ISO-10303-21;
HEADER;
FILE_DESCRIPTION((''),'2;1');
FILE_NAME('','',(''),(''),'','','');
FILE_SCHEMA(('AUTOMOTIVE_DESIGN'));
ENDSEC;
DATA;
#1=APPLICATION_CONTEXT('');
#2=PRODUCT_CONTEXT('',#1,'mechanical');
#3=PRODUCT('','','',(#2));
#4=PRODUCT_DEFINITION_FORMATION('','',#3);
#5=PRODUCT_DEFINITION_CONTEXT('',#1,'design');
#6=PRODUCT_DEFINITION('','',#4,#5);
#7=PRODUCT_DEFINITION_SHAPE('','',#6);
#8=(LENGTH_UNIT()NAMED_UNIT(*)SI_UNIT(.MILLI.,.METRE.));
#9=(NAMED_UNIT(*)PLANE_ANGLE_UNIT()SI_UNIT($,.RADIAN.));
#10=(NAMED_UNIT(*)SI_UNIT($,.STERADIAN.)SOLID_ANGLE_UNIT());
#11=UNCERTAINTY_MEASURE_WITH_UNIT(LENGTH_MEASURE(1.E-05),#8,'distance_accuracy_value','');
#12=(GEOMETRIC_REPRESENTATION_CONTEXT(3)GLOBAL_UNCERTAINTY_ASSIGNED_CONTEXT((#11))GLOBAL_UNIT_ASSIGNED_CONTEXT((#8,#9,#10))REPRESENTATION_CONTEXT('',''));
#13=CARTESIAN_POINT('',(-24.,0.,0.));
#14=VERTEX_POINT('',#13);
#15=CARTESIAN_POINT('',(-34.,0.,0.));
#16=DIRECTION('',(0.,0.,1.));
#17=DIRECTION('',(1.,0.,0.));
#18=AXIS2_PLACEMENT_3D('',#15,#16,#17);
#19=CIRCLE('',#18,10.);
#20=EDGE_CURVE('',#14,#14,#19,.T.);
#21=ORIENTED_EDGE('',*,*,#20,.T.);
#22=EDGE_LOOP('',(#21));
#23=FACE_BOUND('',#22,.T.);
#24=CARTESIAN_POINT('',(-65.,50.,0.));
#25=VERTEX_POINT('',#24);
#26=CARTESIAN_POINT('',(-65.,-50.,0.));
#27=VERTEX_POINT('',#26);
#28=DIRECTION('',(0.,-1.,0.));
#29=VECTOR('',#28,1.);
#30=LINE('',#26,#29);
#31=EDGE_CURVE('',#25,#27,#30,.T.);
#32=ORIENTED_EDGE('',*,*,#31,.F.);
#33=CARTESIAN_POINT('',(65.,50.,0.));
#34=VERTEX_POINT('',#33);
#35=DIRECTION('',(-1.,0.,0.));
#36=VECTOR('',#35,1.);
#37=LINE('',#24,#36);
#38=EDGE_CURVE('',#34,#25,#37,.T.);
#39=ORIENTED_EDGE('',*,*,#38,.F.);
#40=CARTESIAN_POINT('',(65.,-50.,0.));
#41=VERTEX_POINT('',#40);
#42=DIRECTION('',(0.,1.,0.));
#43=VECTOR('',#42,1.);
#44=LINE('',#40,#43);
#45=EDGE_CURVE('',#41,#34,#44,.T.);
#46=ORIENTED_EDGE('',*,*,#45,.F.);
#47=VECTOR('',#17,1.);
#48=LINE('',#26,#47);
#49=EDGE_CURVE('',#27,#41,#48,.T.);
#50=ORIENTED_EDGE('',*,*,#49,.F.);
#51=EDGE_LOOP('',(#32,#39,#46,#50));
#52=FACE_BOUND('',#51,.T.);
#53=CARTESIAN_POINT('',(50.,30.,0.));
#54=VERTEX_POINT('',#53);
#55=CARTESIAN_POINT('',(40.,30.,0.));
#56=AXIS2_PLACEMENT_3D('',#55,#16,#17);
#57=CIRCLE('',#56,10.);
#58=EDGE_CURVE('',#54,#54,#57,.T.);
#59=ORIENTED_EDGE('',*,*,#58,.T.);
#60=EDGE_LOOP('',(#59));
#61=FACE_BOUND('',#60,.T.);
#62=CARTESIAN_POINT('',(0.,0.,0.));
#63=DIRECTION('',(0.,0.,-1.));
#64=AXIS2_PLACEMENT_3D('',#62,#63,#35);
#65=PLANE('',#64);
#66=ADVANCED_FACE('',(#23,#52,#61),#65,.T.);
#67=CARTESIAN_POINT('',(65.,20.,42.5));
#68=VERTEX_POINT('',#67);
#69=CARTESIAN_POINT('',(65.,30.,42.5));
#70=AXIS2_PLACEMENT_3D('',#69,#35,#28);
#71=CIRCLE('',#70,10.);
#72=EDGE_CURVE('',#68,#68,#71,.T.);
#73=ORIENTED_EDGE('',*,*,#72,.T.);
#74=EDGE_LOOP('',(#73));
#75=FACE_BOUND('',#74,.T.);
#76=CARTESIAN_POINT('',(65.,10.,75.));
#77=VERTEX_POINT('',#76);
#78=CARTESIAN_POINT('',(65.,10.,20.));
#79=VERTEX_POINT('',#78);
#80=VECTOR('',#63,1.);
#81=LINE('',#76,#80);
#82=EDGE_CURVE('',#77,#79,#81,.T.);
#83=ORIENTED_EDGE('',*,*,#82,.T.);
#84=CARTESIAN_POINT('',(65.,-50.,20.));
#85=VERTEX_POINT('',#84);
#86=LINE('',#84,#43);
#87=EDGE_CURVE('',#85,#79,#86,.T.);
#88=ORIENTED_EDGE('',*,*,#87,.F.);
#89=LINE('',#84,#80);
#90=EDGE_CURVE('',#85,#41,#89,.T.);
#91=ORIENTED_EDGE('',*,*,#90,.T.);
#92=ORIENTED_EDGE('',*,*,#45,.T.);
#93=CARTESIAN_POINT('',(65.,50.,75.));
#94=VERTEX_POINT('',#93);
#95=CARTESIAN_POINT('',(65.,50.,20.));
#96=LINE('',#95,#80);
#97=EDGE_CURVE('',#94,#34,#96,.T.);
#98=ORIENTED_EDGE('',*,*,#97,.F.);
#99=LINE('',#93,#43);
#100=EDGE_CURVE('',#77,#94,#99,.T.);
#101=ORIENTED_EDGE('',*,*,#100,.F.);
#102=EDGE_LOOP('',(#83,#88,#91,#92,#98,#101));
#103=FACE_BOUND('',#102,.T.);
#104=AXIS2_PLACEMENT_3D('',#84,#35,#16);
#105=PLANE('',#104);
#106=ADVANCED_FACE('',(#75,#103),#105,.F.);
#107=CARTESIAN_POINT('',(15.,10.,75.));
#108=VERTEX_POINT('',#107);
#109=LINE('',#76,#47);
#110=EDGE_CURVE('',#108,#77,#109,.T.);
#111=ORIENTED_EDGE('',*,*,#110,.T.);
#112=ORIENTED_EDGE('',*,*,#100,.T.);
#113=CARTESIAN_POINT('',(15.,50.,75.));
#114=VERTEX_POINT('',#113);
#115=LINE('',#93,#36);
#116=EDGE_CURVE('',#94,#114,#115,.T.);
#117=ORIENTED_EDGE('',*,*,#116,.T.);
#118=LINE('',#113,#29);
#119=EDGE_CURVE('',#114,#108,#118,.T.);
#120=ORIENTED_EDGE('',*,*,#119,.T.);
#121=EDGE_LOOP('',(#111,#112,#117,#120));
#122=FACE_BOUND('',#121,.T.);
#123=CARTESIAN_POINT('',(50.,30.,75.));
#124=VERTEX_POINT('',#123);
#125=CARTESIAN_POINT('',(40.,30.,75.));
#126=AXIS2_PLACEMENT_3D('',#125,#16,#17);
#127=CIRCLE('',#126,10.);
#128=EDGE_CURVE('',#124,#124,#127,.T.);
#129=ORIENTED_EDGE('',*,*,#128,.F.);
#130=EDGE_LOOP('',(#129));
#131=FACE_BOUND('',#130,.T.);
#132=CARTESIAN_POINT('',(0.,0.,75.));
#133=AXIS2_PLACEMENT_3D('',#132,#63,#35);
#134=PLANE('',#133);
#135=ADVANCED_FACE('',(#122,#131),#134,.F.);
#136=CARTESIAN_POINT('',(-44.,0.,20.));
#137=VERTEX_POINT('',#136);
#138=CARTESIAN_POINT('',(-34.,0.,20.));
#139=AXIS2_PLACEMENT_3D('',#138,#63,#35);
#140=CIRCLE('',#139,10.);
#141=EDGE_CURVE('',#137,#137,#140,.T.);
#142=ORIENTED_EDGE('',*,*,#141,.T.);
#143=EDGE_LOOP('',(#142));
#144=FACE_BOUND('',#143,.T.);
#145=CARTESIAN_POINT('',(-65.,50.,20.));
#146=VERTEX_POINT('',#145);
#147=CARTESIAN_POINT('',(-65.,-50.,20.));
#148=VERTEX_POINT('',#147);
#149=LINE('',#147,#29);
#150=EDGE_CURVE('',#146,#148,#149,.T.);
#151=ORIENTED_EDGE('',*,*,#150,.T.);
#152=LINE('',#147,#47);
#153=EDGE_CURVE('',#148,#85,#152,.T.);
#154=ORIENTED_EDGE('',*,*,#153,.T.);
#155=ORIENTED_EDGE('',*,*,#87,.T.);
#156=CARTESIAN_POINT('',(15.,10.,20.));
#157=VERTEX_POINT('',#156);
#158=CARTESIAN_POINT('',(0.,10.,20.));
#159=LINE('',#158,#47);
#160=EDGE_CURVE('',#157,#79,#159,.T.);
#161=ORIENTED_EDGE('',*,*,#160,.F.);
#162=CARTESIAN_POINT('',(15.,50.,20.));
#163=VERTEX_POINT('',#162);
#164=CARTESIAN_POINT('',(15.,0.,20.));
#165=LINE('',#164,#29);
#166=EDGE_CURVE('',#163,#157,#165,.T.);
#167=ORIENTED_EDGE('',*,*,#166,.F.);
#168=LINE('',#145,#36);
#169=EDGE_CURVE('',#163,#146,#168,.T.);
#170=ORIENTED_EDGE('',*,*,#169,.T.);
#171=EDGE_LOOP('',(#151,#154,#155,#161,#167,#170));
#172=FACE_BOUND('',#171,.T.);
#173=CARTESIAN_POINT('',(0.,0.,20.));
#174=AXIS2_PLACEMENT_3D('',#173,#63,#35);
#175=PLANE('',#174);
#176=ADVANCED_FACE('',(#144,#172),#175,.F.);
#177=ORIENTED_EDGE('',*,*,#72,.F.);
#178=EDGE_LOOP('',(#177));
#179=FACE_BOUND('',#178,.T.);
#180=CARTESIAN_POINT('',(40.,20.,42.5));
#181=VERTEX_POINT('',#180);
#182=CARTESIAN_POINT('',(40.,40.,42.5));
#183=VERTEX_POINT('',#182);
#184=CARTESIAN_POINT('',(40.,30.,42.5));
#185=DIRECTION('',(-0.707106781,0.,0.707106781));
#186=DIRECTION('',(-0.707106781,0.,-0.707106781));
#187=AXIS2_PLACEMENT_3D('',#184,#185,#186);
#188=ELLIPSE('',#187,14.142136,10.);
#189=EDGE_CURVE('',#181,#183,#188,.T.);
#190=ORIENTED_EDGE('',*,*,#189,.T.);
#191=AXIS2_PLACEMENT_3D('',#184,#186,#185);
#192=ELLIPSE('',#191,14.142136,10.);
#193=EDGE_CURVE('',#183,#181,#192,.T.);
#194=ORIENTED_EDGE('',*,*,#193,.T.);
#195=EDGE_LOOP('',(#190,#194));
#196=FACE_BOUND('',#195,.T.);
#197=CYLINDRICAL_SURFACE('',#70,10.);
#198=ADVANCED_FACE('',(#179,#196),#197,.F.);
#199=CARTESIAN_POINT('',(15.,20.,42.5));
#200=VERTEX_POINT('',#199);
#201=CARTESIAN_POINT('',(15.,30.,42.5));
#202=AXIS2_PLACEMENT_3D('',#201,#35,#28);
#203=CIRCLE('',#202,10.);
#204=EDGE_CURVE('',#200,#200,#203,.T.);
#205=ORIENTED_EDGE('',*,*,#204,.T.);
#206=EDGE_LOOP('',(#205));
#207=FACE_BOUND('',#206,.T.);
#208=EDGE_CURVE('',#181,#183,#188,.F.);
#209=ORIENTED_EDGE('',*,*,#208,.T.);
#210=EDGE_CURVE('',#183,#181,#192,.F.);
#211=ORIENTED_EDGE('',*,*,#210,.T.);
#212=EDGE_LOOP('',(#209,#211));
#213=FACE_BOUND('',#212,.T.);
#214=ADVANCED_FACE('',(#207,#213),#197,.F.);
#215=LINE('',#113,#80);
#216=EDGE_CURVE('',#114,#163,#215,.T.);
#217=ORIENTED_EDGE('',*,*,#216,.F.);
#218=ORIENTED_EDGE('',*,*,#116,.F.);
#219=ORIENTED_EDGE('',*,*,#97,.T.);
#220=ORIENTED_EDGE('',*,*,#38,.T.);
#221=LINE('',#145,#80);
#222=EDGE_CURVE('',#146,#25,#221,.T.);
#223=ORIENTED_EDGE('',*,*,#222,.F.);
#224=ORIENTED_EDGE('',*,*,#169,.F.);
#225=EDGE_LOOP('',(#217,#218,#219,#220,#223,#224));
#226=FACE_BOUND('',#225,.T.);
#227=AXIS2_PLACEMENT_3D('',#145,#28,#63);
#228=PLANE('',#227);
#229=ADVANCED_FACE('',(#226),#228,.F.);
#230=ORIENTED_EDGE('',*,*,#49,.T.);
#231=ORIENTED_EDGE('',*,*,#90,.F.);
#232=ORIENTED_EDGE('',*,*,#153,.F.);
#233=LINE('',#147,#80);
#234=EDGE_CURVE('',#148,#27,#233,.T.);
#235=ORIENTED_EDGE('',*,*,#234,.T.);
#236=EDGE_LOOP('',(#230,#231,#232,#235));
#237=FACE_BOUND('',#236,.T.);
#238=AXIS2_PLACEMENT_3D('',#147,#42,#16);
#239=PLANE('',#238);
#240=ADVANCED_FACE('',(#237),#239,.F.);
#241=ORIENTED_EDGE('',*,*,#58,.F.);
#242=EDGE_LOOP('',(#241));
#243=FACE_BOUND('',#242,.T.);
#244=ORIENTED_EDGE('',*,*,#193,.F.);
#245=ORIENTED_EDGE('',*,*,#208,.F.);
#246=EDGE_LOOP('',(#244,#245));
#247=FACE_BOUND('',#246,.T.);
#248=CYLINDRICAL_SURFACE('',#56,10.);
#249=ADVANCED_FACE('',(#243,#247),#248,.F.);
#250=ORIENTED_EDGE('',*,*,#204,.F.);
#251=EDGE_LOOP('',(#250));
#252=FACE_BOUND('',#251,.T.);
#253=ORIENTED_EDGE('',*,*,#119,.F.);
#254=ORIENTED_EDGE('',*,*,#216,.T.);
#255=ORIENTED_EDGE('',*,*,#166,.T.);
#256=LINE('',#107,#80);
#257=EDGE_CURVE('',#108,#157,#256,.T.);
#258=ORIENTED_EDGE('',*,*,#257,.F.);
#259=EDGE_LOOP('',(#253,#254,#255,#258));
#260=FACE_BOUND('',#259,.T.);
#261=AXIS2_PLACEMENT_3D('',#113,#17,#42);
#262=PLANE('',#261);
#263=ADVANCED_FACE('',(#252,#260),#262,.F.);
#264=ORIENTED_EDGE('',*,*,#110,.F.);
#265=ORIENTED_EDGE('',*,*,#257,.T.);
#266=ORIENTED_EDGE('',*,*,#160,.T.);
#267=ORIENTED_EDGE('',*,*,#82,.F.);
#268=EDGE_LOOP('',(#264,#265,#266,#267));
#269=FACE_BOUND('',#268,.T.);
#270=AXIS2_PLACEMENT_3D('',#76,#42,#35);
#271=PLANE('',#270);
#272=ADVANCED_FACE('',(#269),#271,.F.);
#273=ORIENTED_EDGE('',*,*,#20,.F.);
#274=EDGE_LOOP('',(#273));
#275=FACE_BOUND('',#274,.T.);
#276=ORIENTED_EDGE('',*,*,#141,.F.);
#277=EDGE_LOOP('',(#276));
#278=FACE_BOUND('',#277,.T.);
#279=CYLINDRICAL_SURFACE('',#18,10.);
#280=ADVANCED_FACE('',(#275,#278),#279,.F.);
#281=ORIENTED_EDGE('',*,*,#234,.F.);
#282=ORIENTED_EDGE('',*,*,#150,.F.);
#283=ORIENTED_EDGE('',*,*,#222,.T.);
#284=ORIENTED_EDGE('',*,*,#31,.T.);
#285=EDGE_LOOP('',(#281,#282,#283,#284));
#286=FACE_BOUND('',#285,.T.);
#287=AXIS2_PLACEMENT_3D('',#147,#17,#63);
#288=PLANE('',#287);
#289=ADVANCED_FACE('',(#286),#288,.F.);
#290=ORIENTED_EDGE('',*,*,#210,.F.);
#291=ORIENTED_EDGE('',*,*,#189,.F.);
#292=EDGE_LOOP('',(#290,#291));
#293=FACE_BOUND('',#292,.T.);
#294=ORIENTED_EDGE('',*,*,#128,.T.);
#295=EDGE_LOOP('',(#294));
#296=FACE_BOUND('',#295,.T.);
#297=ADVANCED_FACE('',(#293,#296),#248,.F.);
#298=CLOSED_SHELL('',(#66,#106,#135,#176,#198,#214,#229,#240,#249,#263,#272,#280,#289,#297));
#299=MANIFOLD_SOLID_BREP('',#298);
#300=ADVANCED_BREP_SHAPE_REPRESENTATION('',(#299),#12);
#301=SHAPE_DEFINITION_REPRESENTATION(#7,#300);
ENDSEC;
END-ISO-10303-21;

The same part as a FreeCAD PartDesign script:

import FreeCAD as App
import Part
import Sketcher
Q = App.Units.Quantity


def add_polygon(sketch, points):
    """Adds a closed chain of lines whose ends are joined by coincident constraints."""
    first, n = sketch.GeometryCount, len(points)
    for a, b in zip(points, points[1:] + points[:1]):
        sketch.addGeometry(Part.LineSegment(App.Vector(*a, 0), App.Vector(*b, 0)), False)
    for i in range(n):
        sketch.addConstraint(Sketcher.Constraint("Coincident", first + i, 2, first + (i + 1) % n, 1))

doc = App.newDocument("Part")
body = doc.addObject("PartDesign::Body", "Body")

# Sketch on XY plane
sketch1 = body.newObject("Sketcher::SketchObject", "Sketch")
sketch1.AttachmentSupport = (doc.getObject("XY_Plane"), [""])
sketch1.MapMode = "FlatFace"
add_polygon(sketch1, [(-65, 50), (-65, -50), (65, -50), (65, 50)])  # lines 0-3
sketch1.addConstraint(Sketcher.Constraint("Vertical", 0))
sketch1.addConstraint(Sketcher.Constraint("Horizontal", 1))
sketch1.addConstraint(Sketcher.Constraint("Vertical", 2))
sketch1.addConstraint(Sketcher.Constraint("Horizontal", 3))
sketch1.addConstraint(Sketcher.Constraint("Symmetric", 0, 2, 2, 2, -1, 1))
sketch1.addConstraint(Sketcher.Constraint("DistanceX", 1, 1, 1, 2, Q("130 mm")))
sketch1.addConstraint(Sketcher.Constraint("DistanceY", 0, 2, 0, 1, Q("100 mm")))
pad1 = body.newObject("PartDesign::Pad", "Pad")
pad1.Profile = sketch1
pad1.Length = 20

# Sketch on XY plane
sketch2 = body.newObject("Sketcher::SketchObject", "Sketch001")
sketch2.AttachmentSupport = (doc.getObject("XY_Plane"), [""])
sketch2.MapMode = "FlatFace"
sketch2.AttachmentOffset = App.Placement(App.Vector(0, 0, 20), App.Rotation())
add_polygon(sketch2, [(-7, 38), (-7, -38), (53, -38), (53, 38)])  # lines 0-3
add_polygon(sketch2, [(-53, 38), (-53, -38), (-15, -38), (-15, 38)])  # lines 4-7
sketch2.addConstraint(Sketcher.Constraint("Vertical", 0))
sketch2.addConstraint(Sketcher.Constraint("Horizontal", 1))
sketch2.addConstraint(Sketcher.Constraint("Vertical", 2))
sketch2.addConstraint(Sketcher.Constraint("Horizontal", 3))
sketch2.addConstraint(Sketcher.Constraint("Vertical", 4))
sketch2.addConstraint(Sketcher.Constraint("Horizontal", 5))
sketch2.addConstraint(Sketcher.Constraint("Vertical", 6))
sketch2.addConstraint(Sketcher.Constraint("Horizontal", 7))
sketch2.addConstraint(Sketcher.Constraint("Symmetric", 2, 2, 4, 2, -1, 1))
sketch2.addConstraint(Sketcher.Constraint("Horizontal", 1, 2, 4, 2))
sketch2.addConstraint(Sketcher.Constraint("Horizontal", 3, 2, 6, 2))
sketch2.addConstraint(Sketcher.Constraint("DistanceX", 1, 1, 1, 2, Q("60 mm")))
sketch2.addConstraint(Sketcher.Constraint("DistanceX", 5, 1, 5, 2, Q("38 mm")))
sketch2.addConstraint(Sketcher.Constraint("DistanceY", 0, 2, 0, 1, Q("76 mm")))
sketch2.addConstraint(Sketcher.Constraint("DistanceX", 0, 2, -1, 1, Q("7 mm")))
pocket1 = body.newObject("PartDesign::Pocket", "Pocket")
pocket1.Profile = sketch2
pocket1.Length = 10

# Sketch on XY plane
sketch3 = body.newObject("Sketcher::SketchObject", "Sketch002")
sketch3.AttachmentSupport = (doc.getObject("XY_Plane"), [""])
sketch3.MapMode = "FlatFace"
sketch3.AttachmentOffset = App.Placement(App.Vector(0, 0, 10), App.Rotation())
add_polygon(sketch3, [(15, 50), (15, 10), (65, 10), (65, 50)])  # lines 0-3
sketch3.addConstraint(Sketcher.Constraint("Vertical", 0))
sketch3.addConstraint(Sketcher.Constraint("Horizontal", 1))
sketch3.addConstraint(Sketcher.Constraint("Vertical", 2))
sketch3.addConstraint(Sketcher.Constraint("Horizontal", 3))
sketch3.addConstraint(Sketcher.Constraint("DistanceX", 1, 1, 1, 2, Q("50 mm")))
sketch3.addConstraint(Sketcher.Constraint("DistanceY", 0, 2, 0, 1, Q("40 mm")))
sketch3.addConstraint(Sketcher.Constraint("DistanceX", -1, 1, 0, 2, Q("15 mm")))
sketch3.addConstraint(Sketcher.Constraint("DistanceY", -1, 1, 0, 2, Q("10 mm")))
pad2 = body.newObject("PartDesign::Pad", "Pad001")
pad2.Profile = sketch3
pad2.Length = 65

# Sketch on XY plane
sketch4 = body.newObject("Sketcher::SketchObject", "Sketch003")
sketch4.AttachmentSupport = (doc.getObject("XY_Plane"), [""])
sketch4.MapMode = "FlatFace"
sketch4.AttachmentOffset = App.Placement(App.Vector(0, 0, 10), App.Rotation())
sketch4.addGeometry(Part.Circle(App.Vector(-34, 0, 0), App.Vector(0, 0, 1), 10), False)
sketch4.addConstraint(Sketcher.Constraint("PointOnObject", 0, 3, -1))
sketch4.addConstraint(Sketcher.Constraint("Diameter", 0, Q("20 mm")))
sketch4.addConstraint(Sketcher.Constraint("DistanceX", 0, 3, -1, 1, Q("34 mm")))
pocket2 = body.newObject("PartDesign::Pocket", "Pocket001")
pocket2.Profile = sketch4
pocket2.Type = "ThroughAll"

# Sketch on YZ plane
sketch5 = body.newObject("Sketcher::SketchObject", "Sketch004")
sketch5.AttachmentSupport = (doc.getObject("YZ_Plane"), [""])
sketch5.MapMode = "FlatFace"
sketch5.AttachmentOffset = App.Placement(App.Vector(0, 0, 15), App.Rotation())
sketch5.addGeometry(Part.Circle(App.Vector(30, 42, 0), App.Vector(0, 0, 1), 10), False)
sketch5.addConstraint(Sketcher.Constraint("Diameter", 0, Q("20 mm")))
sketch5.addConstraint(Sketcher.Constraint("DistanceX", -1, 1, 0, 3, Q("30 mm")))
sketch5.addConstraint(Sketcher.Constraint("DistanceY", -1, 1, 0, 3, Q("42.5 mm")))
pocket3 = body.newObject("PartDesign::Pocket", "Pocket002")
pocket3.Profile = sketch5
pocket3.Type = "ThroughAll"
pocket3.Reversed = True

# Sketch on XY plane
sketch6 = body.newObject("Sketcher::SketchObject", "Sketch005")
sketch6.AttachmentSupport = (doc.getObject("XY_Plane"), [""])
sketch6.MapMode = "FlatFace"
sketch6.AttachmentOffset = App.Placement(App.Vector(0, 0, 75), App.Rotation())
sketch6.addGeometry(Part.Circle(App.Vector(40, 30, 0), App.Vector(0, 0, 1), 10), False)
sketch6.addConstraint(Sketcher.Constraint("Diameter", 0, Q("20 mm")))
sketch6.addConstraint(Sketcher.Constraint("DistanceX", -1, 1, 0, 3, Q("40 mm")))
sketch6.addConstraint(Sketcher.Constraint("DistanceY", -1, 1, 0, 3, Q("30 mm")))
pocket4 = body.newObject("PartDesign::Pocket", "Pocket003")
pocket4.Profile = sketch6
pocket4.Type = "ThroughAll"

# Sketch on XY plane
sketch7 = body.newObject("Sketcher::SketchObject", "Sketch006")
sketch7.AttachmentSupport = (doc.getObject("XY_Plane"), [""])
sketch7.MapMode = "FlatFace"
sketch7.AttachmentOffset = App.Placement(App.Vector(0, 0, 20), App.Rotation())
add_polygon(sketch7, [(15, 10), (15, 38), (-7, 38), (-7, -38), (53, -38), (53, 10)])  # lines 0-5
add_polygon(sketch7, [(-53, 38), (-53, -38), (-15, -38), (-15, 38)])  # lines 6-9
sketch7.addGeometry(Part.Circle(App.Vector(-34, 0, 0), App.Vector(0, 0, 1), 10), False)  # 10
sketch7.addConstraint(Sketcher.Constraint("Vertical", 0))
sketch7.addConstraint(Sketcher.Constraint("Horizontal", 1))
sketch7.addConstraint(Sketcher.Constraint("Vertical", 2))
sketch7.addConstraint(Sketcher.Constraint("Horizontal", 3))
sketch7.addConstraint(Sketcher.Constraint("Vertical", 4))
sketch7.addConstraint(Sketcher.Constraint("Horizontal", 5))
sketch7.addConstraint(Sketcher.Constraint("Vertical", 6))
sketch7.addConstraint(Sketcher.Constraint("Horizontal", 7))
sketch7.addConstraint(Sketcher.Constraint("Vertical", 8))
sketch7.addConstraint(Sketcher.Constraint("Horizontal", 9))
sketch7.addConstraint(Sketcher.Constraint("Symmetric", 0, 2, 7, 2, -1, 1))
sketch7.addConstraint(Sketcher.Constraint("Symmetric", 3, 2, 9, 2, -1, 1))
sketch7.addConstraint(Sketcher.Constraint("PointOnObject", 10, 3, -1))
sketch7.addConstraint(Sketcher.Constraint("Horizontal", 3, 2, 6, 2))
sketch7.addConstraint(Sketcher.Constraint("Diameter", 10, Q("20 mm")))
sketch7.addConstraint(Sketcher.Constraint("DistanceX", 1, 2, 1, 1, Q("22 mm")))
sketch7.addConstraint(Sketcher.Constraint("DistanceX", 3, 1, 3, 2, Q("60 mm")))
sketch7.addConstraint(Sketcher.Constraint("DistanceY", 0, 1, 0, 2, Q("28 mm")))
sketch7.addConstraint(Sketcher.Constraint("DistanceY", 2, 2, 2, 1, Q("76 mm")))
sketch7.addConstraint(Sketcher.Constraint("DistanceX", 10, 3, -1, 1, Q("34 mm")))
sketch7.addConstraint(Sketcher.Constraint("DistanceX", -1, 1, 0, 2, Q("15 mm")))
pad3 = body.newObject("PartDesign::Pad", "Pad002")
pad3.Profile = sketch7
pad3.Length = 10
pad3.Reversed = True

doc.recompute()
